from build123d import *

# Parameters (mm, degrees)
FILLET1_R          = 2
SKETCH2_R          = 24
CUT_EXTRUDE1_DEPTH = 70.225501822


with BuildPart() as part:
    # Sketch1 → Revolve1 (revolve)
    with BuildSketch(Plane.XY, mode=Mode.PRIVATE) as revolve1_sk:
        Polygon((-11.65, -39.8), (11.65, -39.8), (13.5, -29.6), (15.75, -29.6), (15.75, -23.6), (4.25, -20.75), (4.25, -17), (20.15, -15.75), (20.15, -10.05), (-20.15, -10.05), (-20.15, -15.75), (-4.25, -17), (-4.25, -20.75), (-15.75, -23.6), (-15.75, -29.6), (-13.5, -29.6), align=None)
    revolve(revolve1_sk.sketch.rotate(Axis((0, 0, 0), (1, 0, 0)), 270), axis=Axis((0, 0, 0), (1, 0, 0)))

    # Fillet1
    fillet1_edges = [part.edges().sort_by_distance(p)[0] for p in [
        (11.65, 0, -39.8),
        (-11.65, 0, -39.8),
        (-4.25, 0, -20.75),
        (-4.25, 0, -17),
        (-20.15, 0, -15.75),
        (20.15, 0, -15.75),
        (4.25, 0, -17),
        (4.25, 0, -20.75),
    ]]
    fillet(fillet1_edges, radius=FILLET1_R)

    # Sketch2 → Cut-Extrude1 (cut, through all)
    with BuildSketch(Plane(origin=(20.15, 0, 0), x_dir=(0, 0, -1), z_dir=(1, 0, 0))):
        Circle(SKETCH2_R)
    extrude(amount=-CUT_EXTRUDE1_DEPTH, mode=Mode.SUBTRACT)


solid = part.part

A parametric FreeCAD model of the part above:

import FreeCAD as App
import Part
import Sketcher
from FreeCAD import Vector


def edges_at(feature, points):
    """Names of the edges that pass closest to the given points."""
    edges = feature.Shape.Edges
    near = lambda p: min(range(len(edges)), key=lambda i: edges[i].distToShape(Part.Vertex(*p))[0])
    return sorted({f"Edge{near(p) + 1}" for p in points})

doc = App.newDocument("Part")
body = doc.addObject("PartDesign::Body", "Body")

# Sketch on XY plane
sketch1 = body.newObject("Sketcher::SketchObject", "Sketch")
sketch1.AttachmentSupport = (doc.getObject("XY_Plane"), [""])
sketch1.MapMode = "FlatFace"
sketch1.addGeometry([
    Part.LineSegment(Vector(-11.7, -39.8, 0), Vector(11.7, -39.8, 0)),  # 0
    Part.LineSegment(Vector(11.7, -39.8, 0), Vector(13.5, -29.6, 0)),  # 1
    Part.LineSegment(Vector(13.5, -29.6, 0), Vector(15.8, -29.6, 0)),  # 2
    Part.LineSegment(Vector(15.8, -29.6, 0), Vector(15.8, -23.6, 0)),  # 3
    Part.LineSegment(Vector(15.8, -23.6, 0), Vector(4.2, -20.8, 0)),  # 4
    Part.LineSegment(Vector(4.2, -20.8, 0), Vector(4.2, -17, 0)),  # 5
    Part.LineSegment(Vector(4.2, -17, 0), Vector(20.1, -15.8, 0)),  # 6
    Part.LineSegment(Vector(20.1, -15.8, 0), Vector(20.1, -10.1, 0)),  # 7
    Part.LineSegment(Vector(20.1, -10.1, 0), Vector(-20.1, -10.1, 0)),  # 8
    Part.LineSegment(Vector(-20.1, -10.1, 0), Vector(-20.1, -15.8, 0)),  # 9
    Part.LineSegment(Vector(-20.1, -15.8, 0), Vector(-4.2, -17, 0)),  # 10
    Part.LineSegment(Vector(-4.2, -17, 0), Vector(-4.2, -20.8, 0)),  # 11
    Part.LineSegment(Vector(-4.2, -20.8, 0), Vector(-15.8, -23.6, 0)),  # 12
    Part.LineSegment(Vector(-15.8, -23.6, 0), Vector(-15.8, -29.6, 0)),  # 13
    Part.LineSegment(Vector(-15.8, -29.6, 0), Vector(-13.5, -29.6, 0)),  # 14
    Part.LineSegment(Vector(-13.5, -29.6, 0), Vector(-11.7, -39.8, 0)),  # 15
], False)
sketch1.addConstraint([
    Sketcher.Constraint("Coincident", 0, 2, 1, 1),
    Sketcher.Constraint("Coincident", 1, 2, 2, 1),
    Sketcher.Constraint("Coincident", 2, 2, 3, 1),
    Sketcher.Constraint("Coincident", 3, 2, 4, 1),
    Sketcher.Constraint("Coincident", 4, 2, 5, 1),
    Sketcher.Constraint("Coincident", 5, 2, 6, 1),
    Sketcher.Constraint("Coincident", 6, 2, 7, 1),
    Sketcher.Constraint("Coincident", 7, 2, 8, 1),
    Sketcher.Constraint("Coincident", 8, 2, 9, 1),
    Sketcher.Constraint("Coincident", 9, 2, 10, 1),
    Sketcher.Constraint("Coincident", 10, 2, 11, 1),
    Sketcher.Constraint("Coincident", 11, 2, 12, 1),
    Sketcher.Constraint("Coincident", 12, 2, 13, 1),
    Sketcher.Constraint("Coincident", 13, 2, 14, 1),
    Sketcher.Constraint("Coincident", 14, 2, 15, 1),
    Sketcher.Constraint("Coincident", 15, 2, 0, 1),
    Sketcher.Constraint("Horizontal", 0),
    Sketcher.Constraint("Horizontal", 2),
    Sketcher.Constraint("Vertical", 3),
    Sketcher.Constraint("Vertical", 5),
    Sketcher.Constraint("Vertical", 7),
    Sketcher.Constraint("Horizontal", 8),
    Sketcher.Constraint("Vertical", 9),
    Sketcher.Constraint("Vertical", 11),
    Sketcher.Constraint("Vertical", 13),
    Sketcher.Constraint("Horizontal", 14),
    Sketcher.Constraint("Symmetric", 6, 2, 9, 2, -2),
    Sketcher.Constraint("Symmetric", 5, 2, 10, 2, -2),
    Sketcher.Constraint("Symmetric", 3, 2, 12, 2, -2),
    Sketcher.Constraint("Symmetric", 1, 2, 14, 2, -2),
    Sketcher.Constraint("Horizontal", 4, 2, 11, 2),
    Sketcher.Constraint("Equal", 1, 15),
    Sketcher.Constraint("DistanceY", 3, 1, 3, 2, 6.0),
    Sketcher.Constraint("DistanceX", 0, 1, 0, 2, 23.3),
    Sketcher.Constraint("DistanceX", 8, 2, 8, 1, 40.3),
    Sketcher.Constraint("DistanceY", 7, 1, 7, 2, 5.7),
    Sketcher.Constraint("DistanceY", 5, 2, -1, 1, 17.0),
    Sketcher.Constraint("DistanceY", 4, 2, 6, 2, 5.0),
    Sketcher.Constraint("DistanceX", 10, 2, 3, 2, 20.0),
    Sketcher.Constraint("DistanceX", 2, 1, 2, 2, 2.25),
    Sketcher.Constraint("DistanceY", 5, 1, 5, 2, 3.75),
    Sketcher.Constraint("DistanceY", 0, 2, -1, 1, 39.8),
    Sketcher.Constraint("DistanceX", -1, 1, 1, 2, 13.5),
    Sketcher.Constraint("DistanceY", 1, 2, -1, 1, 29.6),
])
revolution = body.newObject("PartDesign::Revolution", "Revolution")
revolution.Profile = sketch1
revolution.ReferenceAxis = (sketch1, ["H_Axis"])
revolution.Angle = 360
doc.recompute()

fillet = body.newObject("PartDesign::Fillet", "Fillet")
fillet.Base = (revolution, edges_at(revolution, [
    (11.65, 0, -39.8),
    (-11.65, 0, -39.8),
    (-4.25, 0, -20.75),
    (-4.25, 0, -17),
    (-20.15, 0, -15.75),
    (20.15, 0, -15.75),
    (4.25, 0, -17),
    (4.25, 0, -20.75),
]))
fillet.Radius = 2

# Sketch on YZ plane
sketch2 = body.newObject("Sketcher::SketchObject", "Sketch001")
sketch2.AttachmentSupport = (doc.getObject("YZ_Plane"), [""])
sketch2.MapMode = "FlatFace"
sketch2.AttachmentOffset = App.Placement(Vector(0, 0, 20.15), App.Rotation())
sketch2.addGeometry(Part.Circle(Vector(0, 0, 0), Vector(0, 0, 1), 24), False)
sketch2.addConstraint([
    Sketcher.Constraint("Coincident", 0, 3, -1, 1),
    Sketcher.Constraint("Diameter", 0, 48.0),
])
pocket1 = body.newObject("PartDesign::Pocket", "Pocket")
pocket1.Profile = sketch2
pocket1.Type = "ThroughAll"

doc.recompute()
